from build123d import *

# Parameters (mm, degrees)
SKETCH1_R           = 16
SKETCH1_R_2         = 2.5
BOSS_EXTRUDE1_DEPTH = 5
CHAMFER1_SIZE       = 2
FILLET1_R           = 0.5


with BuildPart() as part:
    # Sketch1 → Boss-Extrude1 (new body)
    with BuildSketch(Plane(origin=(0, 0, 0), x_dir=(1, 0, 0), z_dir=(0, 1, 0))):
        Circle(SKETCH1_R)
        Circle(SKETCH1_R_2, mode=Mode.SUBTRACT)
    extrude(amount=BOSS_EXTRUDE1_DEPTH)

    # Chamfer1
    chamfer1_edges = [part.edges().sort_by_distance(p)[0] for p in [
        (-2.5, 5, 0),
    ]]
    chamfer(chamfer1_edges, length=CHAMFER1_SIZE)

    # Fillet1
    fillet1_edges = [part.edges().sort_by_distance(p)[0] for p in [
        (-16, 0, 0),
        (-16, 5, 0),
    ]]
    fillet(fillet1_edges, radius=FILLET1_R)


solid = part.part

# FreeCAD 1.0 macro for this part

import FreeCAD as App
import Part
import Sketcher


def edges_at(feature, points):
    """Names of the edges that pass closest to the given points."""
    edges = feature.Shape.Edges
    near = lambda p: min(range(len(edges)), key=lambda i: edges[i].distToShape(Part.Vertex(*p))[0])
    return sorted({f"Edge{near(p) + 1}" for p in points})

doc = App.newDocument("Part")
params = doc.addObject("Spreadsheet::Sheet", "Params")
for row, (alias, value) in enumerate([
    ("sketch1_diameter", "32 mm"),
    ("sketch1_diameter2", "5 mm"),
    ("pad1_length", "5 mm"),
    ("chamfer_size", "2 mm"),
    ("fillet_radius", "0.5 mm"),
], start=1):
    params.set(f"A{row}", alias)
    params.set(f"B{row}", "=" + value)
    params.setAlias(f"B{row}", alias)

body = doc.addObject("PartDesign::Body", "Body")

# Sketch on XZ plane
sketch1 = body.newObject("Sketcher::SketchObject", "Sketch")
sketch1.AttachmentSupport = (doc.getObject("XZ_Plane"), [""])
sketch1.MapMode = "FlatFace"
sketch1.addGeometry(Part.Circle(App.Vector(0, 0, 0), App.Vector(0, 0, 1), 16), False)
sketch1.addGeometry(Part.Circle(App.Vector(0, 0, 0), App.Vector(0, 0, 1), 2.5), False)
sketch1.addConstraint(Sketcher.Constraint("Coincident", 0, 3, -1, 1))
sketch1.addConstraint(Sketcher.Constraint("Coincident", 1, 3, -1, 1))
sketch1.addConstraint(Sketcher.Constraint("Diameter", 0, 32.0))
sketch1.addConstraint(Sketcher.Constraint("Diameter", 1, 5.0))
sketch1.setExpression("Constraints[2]", "Params.sketch1_diameter")
sketch1.setExpression("Constraints[3]", "Params.sketch1_diameter2")
pad1 = body.newObject("PartDesign::Pad", "Pad")
pad1.Profile = sketch1
pad1.setExpression("Length", "Params.pad1_length")
pad1.Reversed = True
doc.recompute()

chamfer = body.newObject("PartDesign::Chamfer", "Chamfer")
chamfer.Base = (pad1, edges_at(pad1, [(-2.5, 5, 0)]))
chamfer.setExpression("Size", "Params.chamfer_size")
doc.recompute()

fillet = body.newObject("PartDesign::Fillet", "Fillet")
fillet.Base = (chamfer, edges_at(chamfer, [(-16, 0, 0), (-16, 5, 0)]))
fillet.setExpression("Radius", "Params.fillet_radius")

doc.recompute()
